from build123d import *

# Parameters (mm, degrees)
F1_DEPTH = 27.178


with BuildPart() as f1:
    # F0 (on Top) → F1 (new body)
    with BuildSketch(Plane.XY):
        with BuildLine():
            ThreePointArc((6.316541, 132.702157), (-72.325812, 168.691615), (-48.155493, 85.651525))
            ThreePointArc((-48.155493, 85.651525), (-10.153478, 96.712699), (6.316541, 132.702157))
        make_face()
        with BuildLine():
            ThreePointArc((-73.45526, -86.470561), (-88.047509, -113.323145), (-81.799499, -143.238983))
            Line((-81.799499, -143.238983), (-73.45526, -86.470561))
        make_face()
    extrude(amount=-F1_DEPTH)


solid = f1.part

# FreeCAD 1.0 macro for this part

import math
import FreeCAD as App
import Part
import Sketcher
Q = App.Units.Quantity

doc = App.newDocument("Part")
body = doc.addObject("PartDesign::Body", "Body")
body.AllowCompound = True

sketch1 = doc.addObject("Sketcher::SketchObject", "Sketch")
body.addObject(sketch1)
sketch1.AttachmentSupport = (doc.XY_Plane, [""])
sketch1.MapMode = "FlatFace"
sketch1.addGeometry(Part.ArcOfCircle(Part.Circle(App.Vector(-41.239645, 132.702157, 0), App.Vector(0, 0, 1), 47.556186), math.radians(0.000001), math.radians(261.638122)), False)
sketch1.addGeometry(Part.ArcOfCircle(Part.Circle(App.Vector(-41.239646, 132.702157, 0), App.Vector(0, 0, 1), 47.556187), math.radians(-98.361877), math.radians(0)), False)
sketch1.addGeometry(Part.ArcOfCircle(Part.Circle(App.Vector(-44.178451, -119.771341, 0), App.Vector(0, 0, 1), 44.340427), math.radians(131.320735), math.radians(211.955512)), False)
sketch1.addGeometry(Part.LineSegment(App.Vector(-81.799499, -143.238983, 0), App.Vector(-73.45526, -86.470561, 0)), False)
sketch1.addConstraint(Sketcher.Constraint("Tangent", 0, 1, 1, 2))
sketch1.addConstraint(Sketcher.Constraint("Coincident", 1, 1, 0, 2))
sketch1.addConstraint(Sketcher.Constraint("Coincident", 2, 1, 3, 2))
sketch1.addConstraint(Sketcher.Constraint("Coincident", 3, 1, 2, 2))
sketch1.addConstraint(Sketcher.Constraint("Horizontal", 1, 3, 0, 1))
sketch1.addConstraint(Sketcher.Constraint("Radius", 0, Q("47.556186 mm")))
sketch1.addConstraint(Sketcher.Constraint("Radius", 2, Q("44.340427 mm")))
sketch1.addConstraint(Sketcher.Constraint("DistanceX", 3, 1, -1, 1, Q("81.799499 mm")))
sketch1.addConstraint(Sketcher.Constraint("DistanceX", 2, 1, 0, 1, Q("79.771801 mm")))
sketch1.addConstraint(Sketcher.Constraint("DistanceX", 2, 3, -1, 1, Q("44.178451 mm")))
sketch1.addConstraint(Sketcher.Constraint("DistanceY", 2, 3, -1, 1, Q("119.771341 mm")))
sketch1.addConstraint(Sketcher.Constraint("DistanceX", -1, 1, 0, 1, Q("6.316541 mm")))
sketch1.addConstraint(Sketcher.Constraint("DistanceY", 1, 1, 0, 3, Q("47.050632 mm")))
sketch1.addConstraint(Sketcher.Constraint("DistanceY", 3, 1, 0, 3, Q("275.94114 mm")))
pad1 = doc.addObject("PartDesign::Pad", "Pad")
body.addObject(pad1)
pad1.Profile = sketch1
pad1.Length = Q("1.07 in")
pad1.Reversed = True

doc.recompute()
